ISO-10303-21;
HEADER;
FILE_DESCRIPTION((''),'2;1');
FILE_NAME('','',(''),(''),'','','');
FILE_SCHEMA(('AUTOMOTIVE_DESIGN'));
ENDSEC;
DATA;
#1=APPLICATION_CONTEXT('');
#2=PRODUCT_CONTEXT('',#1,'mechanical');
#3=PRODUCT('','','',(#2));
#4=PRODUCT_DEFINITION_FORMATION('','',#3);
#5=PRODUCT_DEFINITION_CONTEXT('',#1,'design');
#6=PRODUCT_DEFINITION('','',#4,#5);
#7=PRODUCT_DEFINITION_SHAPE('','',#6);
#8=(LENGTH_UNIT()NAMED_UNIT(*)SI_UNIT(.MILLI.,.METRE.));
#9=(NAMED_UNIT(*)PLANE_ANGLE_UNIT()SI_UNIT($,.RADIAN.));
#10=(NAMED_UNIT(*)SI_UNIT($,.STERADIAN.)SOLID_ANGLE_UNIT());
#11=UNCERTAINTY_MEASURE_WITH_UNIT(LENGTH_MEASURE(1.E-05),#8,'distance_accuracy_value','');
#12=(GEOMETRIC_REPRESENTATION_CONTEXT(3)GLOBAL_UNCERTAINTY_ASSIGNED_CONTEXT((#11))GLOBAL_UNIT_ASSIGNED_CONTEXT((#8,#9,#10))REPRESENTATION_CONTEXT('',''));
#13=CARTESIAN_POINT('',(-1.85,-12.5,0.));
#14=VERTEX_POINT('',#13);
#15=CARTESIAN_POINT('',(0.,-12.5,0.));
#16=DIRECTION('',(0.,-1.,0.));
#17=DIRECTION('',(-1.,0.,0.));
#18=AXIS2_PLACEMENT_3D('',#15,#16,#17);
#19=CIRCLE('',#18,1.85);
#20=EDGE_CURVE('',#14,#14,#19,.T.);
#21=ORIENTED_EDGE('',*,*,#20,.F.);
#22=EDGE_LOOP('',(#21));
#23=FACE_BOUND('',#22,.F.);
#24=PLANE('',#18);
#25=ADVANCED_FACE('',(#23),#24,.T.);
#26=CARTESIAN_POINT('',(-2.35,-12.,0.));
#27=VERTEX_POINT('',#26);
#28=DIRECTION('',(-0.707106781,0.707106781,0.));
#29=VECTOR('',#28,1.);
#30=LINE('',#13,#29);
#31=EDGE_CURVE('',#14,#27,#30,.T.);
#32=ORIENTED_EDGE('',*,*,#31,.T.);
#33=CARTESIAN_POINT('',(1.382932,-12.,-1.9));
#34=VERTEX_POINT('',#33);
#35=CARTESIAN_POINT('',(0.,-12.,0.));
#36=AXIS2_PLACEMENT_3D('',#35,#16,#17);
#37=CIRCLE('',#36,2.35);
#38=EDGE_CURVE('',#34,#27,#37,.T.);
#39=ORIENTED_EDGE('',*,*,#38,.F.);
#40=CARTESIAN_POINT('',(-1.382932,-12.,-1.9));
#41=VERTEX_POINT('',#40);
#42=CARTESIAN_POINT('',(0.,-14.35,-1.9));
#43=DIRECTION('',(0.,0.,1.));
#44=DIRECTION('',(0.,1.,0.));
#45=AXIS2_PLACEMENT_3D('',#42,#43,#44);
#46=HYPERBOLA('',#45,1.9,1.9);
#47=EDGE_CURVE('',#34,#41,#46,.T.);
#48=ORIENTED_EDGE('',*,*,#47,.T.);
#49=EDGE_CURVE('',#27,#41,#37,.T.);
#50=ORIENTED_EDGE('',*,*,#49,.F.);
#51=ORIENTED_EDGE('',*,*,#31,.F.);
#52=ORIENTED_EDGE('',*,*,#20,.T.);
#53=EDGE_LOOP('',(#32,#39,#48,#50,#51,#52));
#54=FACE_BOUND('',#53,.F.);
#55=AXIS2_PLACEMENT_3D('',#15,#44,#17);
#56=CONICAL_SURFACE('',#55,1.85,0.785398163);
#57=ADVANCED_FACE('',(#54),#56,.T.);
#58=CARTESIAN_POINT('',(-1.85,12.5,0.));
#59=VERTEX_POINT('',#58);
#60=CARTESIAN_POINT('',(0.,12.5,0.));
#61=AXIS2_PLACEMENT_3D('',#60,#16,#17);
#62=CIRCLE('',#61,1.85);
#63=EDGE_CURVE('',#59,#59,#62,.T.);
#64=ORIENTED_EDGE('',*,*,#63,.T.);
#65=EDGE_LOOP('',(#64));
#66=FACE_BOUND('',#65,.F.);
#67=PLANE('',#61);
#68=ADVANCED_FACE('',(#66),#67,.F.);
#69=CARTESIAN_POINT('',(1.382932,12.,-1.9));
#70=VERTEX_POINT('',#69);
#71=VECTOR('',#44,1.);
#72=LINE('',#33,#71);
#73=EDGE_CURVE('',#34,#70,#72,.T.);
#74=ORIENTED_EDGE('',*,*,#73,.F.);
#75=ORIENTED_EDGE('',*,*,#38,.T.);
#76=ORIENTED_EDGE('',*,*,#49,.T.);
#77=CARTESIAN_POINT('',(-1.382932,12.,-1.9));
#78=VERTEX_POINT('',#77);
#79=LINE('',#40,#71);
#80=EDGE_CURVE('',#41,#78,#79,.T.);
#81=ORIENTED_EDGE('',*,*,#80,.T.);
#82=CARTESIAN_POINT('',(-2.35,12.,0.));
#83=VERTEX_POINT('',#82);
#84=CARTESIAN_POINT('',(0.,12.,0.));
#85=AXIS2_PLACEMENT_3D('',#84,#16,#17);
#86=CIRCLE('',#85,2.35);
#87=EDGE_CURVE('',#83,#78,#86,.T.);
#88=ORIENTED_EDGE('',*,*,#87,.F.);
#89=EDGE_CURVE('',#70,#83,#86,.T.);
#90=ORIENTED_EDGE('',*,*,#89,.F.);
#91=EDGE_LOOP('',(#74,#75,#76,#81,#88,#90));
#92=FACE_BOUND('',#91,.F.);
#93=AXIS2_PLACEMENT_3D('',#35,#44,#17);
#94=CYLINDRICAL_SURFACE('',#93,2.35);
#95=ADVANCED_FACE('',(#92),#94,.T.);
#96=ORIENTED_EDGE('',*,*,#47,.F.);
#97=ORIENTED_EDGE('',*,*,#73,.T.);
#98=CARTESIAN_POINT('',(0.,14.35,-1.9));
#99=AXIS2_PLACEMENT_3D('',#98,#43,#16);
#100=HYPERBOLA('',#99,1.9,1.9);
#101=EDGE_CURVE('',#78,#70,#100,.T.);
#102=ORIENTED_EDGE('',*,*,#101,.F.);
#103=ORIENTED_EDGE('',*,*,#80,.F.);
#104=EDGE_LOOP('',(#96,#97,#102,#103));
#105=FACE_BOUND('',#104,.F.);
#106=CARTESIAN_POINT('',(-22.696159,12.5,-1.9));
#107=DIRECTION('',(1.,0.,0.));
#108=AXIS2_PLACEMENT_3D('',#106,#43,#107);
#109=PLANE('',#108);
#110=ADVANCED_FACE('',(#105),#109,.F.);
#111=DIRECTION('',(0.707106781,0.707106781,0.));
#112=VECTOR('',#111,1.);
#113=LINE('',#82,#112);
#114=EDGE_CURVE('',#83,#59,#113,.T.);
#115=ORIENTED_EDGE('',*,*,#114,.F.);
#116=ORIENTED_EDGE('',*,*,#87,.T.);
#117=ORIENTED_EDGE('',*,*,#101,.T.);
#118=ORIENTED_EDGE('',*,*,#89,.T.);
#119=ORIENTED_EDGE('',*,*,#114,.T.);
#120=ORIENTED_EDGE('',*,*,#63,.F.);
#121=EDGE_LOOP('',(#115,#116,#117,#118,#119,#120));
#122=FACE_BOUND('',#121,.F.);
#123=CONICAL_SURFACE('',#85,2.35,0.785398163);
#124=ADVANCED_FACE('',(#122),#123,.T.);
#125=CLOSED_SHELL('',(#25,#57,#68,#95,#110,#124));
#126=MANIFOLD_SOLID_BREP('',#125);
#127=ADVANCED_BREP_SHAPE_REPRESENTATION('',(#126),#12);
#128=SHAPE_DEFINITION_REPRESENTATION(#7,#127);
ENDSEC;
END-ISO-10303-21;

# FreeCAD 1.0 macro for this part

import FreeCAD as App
import Part
import Sketcher
Q = App.Units.Quantity


def add_polygon(sketch, points):
    """Adds a closed chain of lines whose ends are joined by coincident constraints."""
    first, n = sketch.GeometryCount, len(points)
    for a, b in zip(points, points[1:] + points[:1]):
        sketch.addGeometry(Part.LineSegment(App.Vector(*a, 0), App.Vector(*b, 0)), False)
    for i in range(n):
        sketch.addConstraint(Sketcher.Constraint("Coincident", first + i, 2, first + (i + 1) % n, 1))

doc = App.newDocument("Part")
params = doc.addObject("Spreadsheet::Sheet", "Params")
for row, (alias, value) in enumerate([
    ("sketch1_height", "25 mm"),
    ("sketch1_height2", "24 mm"),
    ("sketch1_width", "1.85 mm"),
    ("revolution_angle", "360 deg"),
], start=1):
    params.set(f"A{row}", alias)
    params.set(f"B{row}", "=" + value)
    params.setAlias(f"B{row}", alias)

body = doc.addObject("PartDesign::Body", "Body")

sketch1 = body.newObject("Sketcher::SketchObject", "Sketch")
sketch1.AttachmentSupport = (doc.getObject("XY_Plane"), [""])
sketch1.MapMode = "FlatFace"
add_polygon(sketch1, [(-1.9, -12.5), (0, -12.5), (0, 12.5), (-1.9, 12.5), (-2.4, 12), (-2.4, -12)])
sketch1.addConstraint([
    Sketcher.Constraint("Horizontal", 0),
    Sketcher.Constraint("Vertical", 1),
    Sketcher.Constraint("Horizontal", 2),
    Sketcher.Constraint("Vertical", 4),
    Sketcher.Constraint("Symmetric", 0, 2, 1, 2, -1, 1),
    Sketcher.Constraint("Perpendicular", 3, 5),
    Sketcher.Constraint("Vertical", 2, 2, 5, 2),
    Sketcher.Constraint("Equal", 3, 5),
    Sketcher.Constraint("DistanceY", 1, 1, 1, 2, Q("25 mm")),
    Sketcher.Constraint("DistanceY", 4, 2, 4, 1, Q("24 mm")),
    Sketcher.Constraint("DistanceX", 0, 1, 0, 2, Q("1.85 mm")),
])
sketch1.setExpression("Constraints[14]", "Params.sketch1_height")
sketch1.setExpression("Constraints[15]", "Params.sketch1_height2")
sketch1.setExpression("Constraints[16]", "Params.sketch1_width")
revolution = body.newObject("PartDesign::Revolution", "Revolution")
revolution.Profile = sketch1
revolution.ReferenceAxis = (sketch1, ["V_Axis"])
revolution.setExpression("Angle", "Params.revolution_angle")

sketch2 = body.newObject("Sketcher::SketchObject", "Sketch001")
sketch2.AttachmentSupport = (doc.getObject("XZ_Plane"), [""])
sketch2.MapMode = "FlatFace"
sketch2.AttachmentOffset = App.Placement(App.Vector(0, 0, -12.5), App.Rotation())
add_polygon(sketch2, [(-23, -2), (23, -2), (23, -45), (-23, -45)])
sketch2.addConstraint([
    Sketcher.Constraint("Horizontal", 0),
    Sketcher.Constraint("Vertical", 1),
    Sketcher.Constraint("Horizontal", 2),
    Sketcher.Constraint("Vertical", 3),
    Sketcher.Constraint("DistanceY", 0, 2, -1, 1, Q("1.9 mm")),
    Sketcher.Constraint("DistanceX", 0, 1, 0, 2, Q("45.392318 mm")),
    Sketcher.Constraint("DistanceY", 1, 2, 1, 1, Q("42.626455 mm")),
    Sketcher.Constraint("DistanceX", -1, 1, 0, 2, Q("22.696159 mm")),
])
pocket1 = body.newObject("PartDesign::Pocket", "Pocket")
pocket1.Profile = sketch2
pocket1.Type = "ThroughAll"
pocket1.Reversed = True

doc.recompute()
